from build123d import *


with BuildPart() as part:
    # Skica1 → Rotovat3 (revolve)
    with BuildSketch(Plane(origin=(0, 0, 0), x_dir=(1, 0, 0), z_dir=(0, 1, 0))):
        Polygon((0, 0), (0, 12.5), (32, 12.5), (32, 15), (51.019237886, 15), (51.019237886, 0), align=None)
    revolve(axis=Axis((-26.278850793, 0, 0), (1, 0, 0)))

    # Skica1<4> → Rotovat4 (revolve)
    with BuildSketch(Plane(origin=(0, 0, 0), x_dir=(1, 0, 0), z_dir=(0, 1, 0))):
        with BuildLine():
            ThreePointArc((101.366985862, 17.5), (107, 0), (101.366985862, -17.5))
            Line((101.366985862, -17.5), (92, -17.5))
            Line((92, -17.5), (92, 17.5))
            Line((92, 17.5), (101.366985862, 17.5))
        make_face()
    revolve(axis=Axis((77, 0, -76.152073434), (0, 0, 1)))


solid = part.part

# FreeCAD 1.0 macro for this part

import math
import FreeCAD as App
import Part
import Sketcher
from FreeCAD import Vector


def add_polygon(sketch, points):
    """Adds a closed chain of lines whose ends are joined by coincident constraints."""
    first, n = sketch.GeometryCount, len(points)
    for a, b in zip(points, points[1:] + points[:1]):
        sketch.addGeometry(Part.LineSegment(App.Vector(*a, 0), App.Vector(*b, 0)), False)
    for i in range(n):
        sketch.addConstraint(Sketcher.Constraint("Coincident", first + i, 2, first + (i + 1) % n, 1))

doc = App.newDocument("Part")
body = doc.addObject("PartDesign::Body", "Body")

# Sketch on XZ plane
sketch1 = body.newObject("Sketcher::SketchObject", "Sketch")
sketch1.AttachmentSupport = (doc.getObject("XZ_Plane"), [""])
sketch1.MapMode = "FlatFace"
add_polygon(sketch1, [(0, -12.5), (0, 0), (51.019238, 0), (51.019238, -15), (32, -15), (32, -12.5)])  # lines 0-5
sketch1.addConstraint([
    Sketcher.Constraint("Vertical", 0),
    Sketcher.Constraint("Horizontal", 1),
    Sketcher.Constraint("Vertical", 2),
    Sketcher.Constraint("Horizontal", 3),
    Sketcher.Constraint("Vertical", 4),
    Sketcher.Constraint("Horizontal", 5),
    Sketcher.Constraint("Coincident", 0, 2, -1, 1),
    Sketcher.Constraint("DistanceX", 5, 2, 5, 1, 32.0),
    Sketcher.Constraint("DistanceY", 2, 2, 2, 1, 15.0),
    Sketcher.Constraint("DistanceY", 0, 1, 0, 2, 12.5),
    Sketcher.Constraint("DistanceX", 1, 1, 1, 2, 51.019238),
])
revolution = body.newObject("PartDesign::Revolution", "Revolution")
revolution.Profile = sketch1
revolution.ReferenceAxis = (sketch1, ["H_Axis"])
revolution.Angle = 360

# Sketch on XZ plane
sketch2 = body.newObject("Sketcher::SketchObject", "Sketch001")
sketch2.AttachmentSupport = (doc.getObject("XZ_Plane"), [""])
sketch2.MapMode = "FlatFace"
sketch2.addGeometry([
    Part.ArcOfCircle(Part.Circle(Vector(77, 0, 0), Vector(0, 0, 1), 30), math.radians(-35.685335), math.radians(35.685335)),
    Part.LineSegment(Vector(101.366986, -17.5, 0), Vector(92, -17.5, 0)),
    Part.LineSegment(Vector(92, -17.5, 0), Vector(92, 17.5, 0)),
    Part.LineSegment(Vector(92, 17.5, 0), Vector(101.366986, 17.5, 0)),
], False)
sketch2.addGeometry(Part.LineSegment(Vector(77, -17.5, 0), Vector(77, 17.5, 0)), True)  # axis
sketch2.addConstraint([
    Sketcher.Constraint("Coincident", 0, 1, 1, 1),
    Sketcher.Constraint("Coincident", 1, 2, 2, 1),
    Sketcher.Constraint("Coincident", 2, 2, 3, 1),
    Sketcher.Constraint("Coincident", 3, 2, 0, 2),
    Sketcher.Constraint("Horizontal", 1),
    Sketcher.Constraint("Vertical", 2),
    Sketcher.Constraint("Horizontal", 3),
    Sketcher.Constraint("Vertical", 4),
    Sketcher.Constraint("Symmetric", 0, 1, 3, 2, -1),
    Sketcher.Constraint("Horizontal", 1, 2, 4, 1),
    Sketcher.Constraint("Horizontal", 3, 2, 4, 2),
    Sketcher.Constraint("Vertical", 0, 3, 4, 1),
    Sketcher.Constraint("Radius", 0, 30.0),
    Sketcher.Constraint("DistanceY", 2, 1, 2, 2, 35.0),
    Sketcher.Constraint("DistanceX", -1, 1, 0, 3, 77.0),
    Sketcher.Constraint("DistanceX", -1, 1, 1, 2, 92.0),
])
revolution2 = body.newObject("PartDesign::Revolution", "Revolution001")
revolution2.Profile = sketch2
revolution2.ReferenceAxis = (sketch2, ["Axis0"])
revolution2.Angle = 360

doc.recompute()
